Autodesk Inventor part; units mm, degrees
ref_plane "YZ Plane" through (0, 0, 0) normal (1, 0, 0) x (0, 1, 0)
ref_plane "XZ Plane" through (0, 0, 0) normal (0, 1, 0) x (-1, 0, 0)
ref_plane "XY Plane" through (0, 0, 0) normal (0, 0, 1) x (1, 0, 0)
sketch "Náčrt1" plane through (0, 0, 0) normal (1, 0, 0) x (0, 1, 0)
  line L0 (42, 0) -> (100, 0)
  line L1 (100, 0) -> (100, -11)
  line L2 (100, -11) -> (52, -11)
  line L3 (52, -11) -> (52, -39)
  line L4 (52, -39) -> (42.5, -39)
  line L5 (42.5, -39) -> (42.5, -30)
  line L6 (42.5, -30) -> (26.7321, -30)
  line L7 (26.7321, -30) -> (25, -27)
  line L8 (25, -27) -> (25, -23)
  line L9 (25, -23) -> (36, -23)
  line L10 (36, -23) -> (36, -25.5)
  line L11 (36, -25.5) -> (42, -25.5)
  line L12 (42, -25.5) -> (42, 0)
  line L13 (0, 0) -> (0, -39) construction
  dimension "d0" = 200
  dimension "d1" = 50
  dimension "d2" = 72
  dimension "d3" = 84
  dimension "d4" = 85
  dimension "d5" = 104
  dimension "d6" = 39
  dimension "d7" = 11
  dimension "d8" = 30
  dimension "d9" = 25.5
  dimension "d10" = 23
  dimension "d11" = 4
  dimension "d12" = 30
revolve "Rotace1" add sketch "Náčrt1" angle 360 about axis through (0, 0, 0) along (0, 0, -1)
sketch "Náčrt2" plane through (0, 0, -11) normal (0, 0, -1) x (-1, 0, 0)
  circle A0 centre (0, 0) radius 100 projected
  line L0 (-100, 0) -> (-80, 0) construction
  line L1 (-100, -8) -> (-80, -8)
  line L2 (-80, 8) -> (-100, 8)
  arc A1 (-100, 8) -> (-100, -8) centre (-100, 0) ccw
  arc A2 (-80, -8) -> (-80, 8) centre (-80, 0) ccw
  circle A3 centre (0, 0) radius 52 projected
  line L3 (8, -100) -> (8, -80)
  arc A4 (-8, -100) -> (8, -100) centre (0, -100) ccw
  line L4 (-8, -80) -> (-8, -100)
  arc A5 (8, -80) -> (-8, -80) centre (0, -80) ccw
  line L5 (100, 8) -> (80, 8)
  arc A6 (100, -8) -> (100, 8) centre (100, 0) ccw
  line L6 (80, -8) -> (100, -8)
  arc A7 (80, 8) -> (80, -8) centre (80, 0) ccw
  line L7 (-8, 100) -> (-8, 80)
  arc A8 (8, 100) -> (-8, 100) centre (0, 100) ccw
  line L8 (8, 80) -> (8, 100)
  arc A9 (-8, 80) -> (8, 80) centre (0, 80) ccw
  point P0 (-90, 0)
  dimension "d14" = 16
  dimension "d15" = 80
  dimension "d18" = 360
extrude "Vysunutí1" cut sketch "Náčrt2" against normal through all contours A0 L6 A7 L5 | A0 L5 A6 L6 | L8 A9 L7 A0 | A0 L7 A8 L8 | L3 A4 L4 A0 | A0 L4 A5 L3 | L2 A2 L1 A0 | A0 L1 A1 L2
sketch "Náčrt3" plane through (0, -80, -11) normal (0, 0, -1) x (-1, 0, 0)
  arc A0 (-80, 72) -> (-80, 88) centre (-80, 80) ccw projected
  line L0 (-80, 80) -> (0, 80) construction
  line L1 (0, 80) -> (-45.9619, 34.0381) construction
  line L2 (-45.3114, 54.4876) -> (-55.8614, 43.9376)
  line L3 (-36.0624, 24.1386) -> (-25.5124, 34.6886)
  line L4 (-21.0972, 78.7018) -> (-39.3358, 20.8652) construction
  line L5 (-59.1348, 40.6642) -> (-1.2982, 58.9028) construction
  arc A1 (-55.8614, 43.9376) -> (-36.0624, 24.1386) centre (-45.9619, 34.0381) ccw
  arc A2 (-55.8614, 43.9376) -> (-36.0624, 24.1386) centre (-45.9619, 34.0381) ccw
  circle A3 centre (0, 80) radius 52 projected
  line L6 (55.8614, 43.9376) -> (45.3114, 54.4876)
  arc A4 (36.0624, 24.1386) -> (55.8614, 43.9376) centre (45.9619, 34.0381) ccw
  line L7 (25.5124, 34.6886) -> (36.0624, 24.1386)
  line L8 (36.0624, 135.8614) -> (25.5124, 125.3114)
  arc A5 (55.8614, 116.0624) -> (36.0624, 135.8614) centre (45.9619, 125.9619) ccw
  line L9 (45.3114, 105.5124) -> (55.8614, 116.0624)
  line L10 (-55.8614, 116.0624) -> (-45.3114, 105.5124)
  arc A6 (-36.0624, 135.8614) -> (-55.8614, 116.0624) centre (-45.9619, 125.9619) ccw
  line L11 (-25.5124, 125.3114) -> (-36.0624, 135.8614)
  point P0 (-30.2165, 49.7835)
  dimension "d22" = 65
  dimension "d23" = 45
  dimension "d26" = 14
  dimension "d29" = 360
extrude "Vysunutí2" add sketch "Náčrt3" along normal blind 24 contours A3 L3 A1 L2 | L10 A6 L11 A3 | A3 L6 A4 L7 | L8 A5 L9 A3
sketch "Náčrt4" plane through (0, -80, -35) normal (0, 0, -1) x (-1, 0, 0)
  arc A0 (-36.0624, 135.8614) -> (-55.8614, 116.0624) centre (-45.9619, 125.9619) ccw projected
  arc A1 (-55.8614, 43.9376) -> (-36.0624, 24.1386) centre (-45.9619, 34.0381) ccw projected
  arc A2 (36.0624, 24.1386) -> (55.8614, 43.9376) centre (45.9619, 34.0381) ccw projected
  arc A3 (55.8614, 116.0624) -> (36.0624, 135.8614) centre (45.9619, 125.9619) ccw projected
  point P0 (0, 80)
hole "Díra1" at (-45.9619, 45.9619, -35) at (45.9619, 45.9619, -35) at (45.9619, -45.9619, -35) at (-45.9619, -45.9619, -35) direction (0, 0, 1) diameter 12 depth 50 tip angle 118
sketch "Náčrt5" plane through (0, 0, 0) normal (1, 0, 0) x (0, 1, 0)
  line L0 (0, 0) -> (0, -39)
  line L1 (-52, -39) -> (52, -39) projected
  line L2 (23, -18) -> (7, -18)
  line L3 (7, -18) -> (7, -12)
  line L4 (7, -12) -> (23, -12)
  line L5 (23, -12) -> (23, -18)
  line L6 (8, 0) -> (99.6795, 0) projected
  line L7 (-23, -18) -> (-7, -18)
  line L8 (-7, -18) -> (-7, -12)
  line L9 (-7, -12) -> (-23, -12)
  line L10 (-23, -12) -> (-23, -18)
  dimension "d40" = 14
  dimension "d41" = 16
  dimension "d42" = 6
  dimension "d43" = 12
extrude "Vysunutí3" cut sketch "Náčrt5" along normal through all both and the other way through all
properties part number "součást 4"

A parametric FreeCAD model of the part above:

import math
import FreeCAD as App
import Part
import Sketcher
Q = App.Units.Quantity

doc = App.newDocument("Part")
params = doc.addObject("Spreadsheet::Sheet", "Params")
for row, (alias, value) in enumerate([
    ("sketch1_width", "11 mm"),
    ("sketch1_height", "4 mm"),
    ("sketch1_height2", "25.5 mm"),
    ("sketch1_width2", "58 mm"),
    ("sketch1_width3", "6 mm"),
    ("revolution_angle", "360 deg"),
    ("sketch2_radius", "8 mm"),
    ("sketch2_width", "20 mm"),
    ("sketch3_radius", "14 mm"),
    ("sketch3_radius2", "52 mm"),
    ("sketch3_length", "14.92 mm"),
    ("pad1_length", "24 mm"),
    ("sketch4_diameter", "12 mm"),
    ("hole_diameter", "12 mm"),
    ("hole_depth", "50 mm"),
    ("sketch5_width", "16 mm"),
    ("sketch5_height", "6 mm"),
], start=1):
    params.set(f"A{row}", alias)
    params.set(f"B{row}", "=" + value)
    params.setAlias(f"B{row}", alias)

body = doc.addObject("PartDesign::Body", "Body")

# Sketch on YZ plane
sketch1 = doc.addObject("Sketcher::SketchObject", "Sketch")
body.addObject(sketch1)
sketch1.AttachmentSupport = (doc.YZ_Plane, [""])
sketch1.MapMode = "FlatFace"
sketch1.addGeometry(Part.LineSegment(App.Vector(100, 0, 0), App.Vector(42, 0, 0)), False)
sketch1.addGeometry(Part.LineSegment(App.Vector(42, 0, 0), App.Vector(42, -25.5, 0)), False)
sketch1.addGeometry(Part.LineSegment(App.Vector(42, -25.5, 0), App.Vector(36, -25.5, 0)), False)
sketch1.addGeometry(Part.LineSegment(App.Vector(36, -25.5, 0), App.Vector(36, -23, 0)), False)
sketch1.addGeometry(Part.LineSegment(App.Vector(36, -23, 0), App.Vector(25, -23, 0)), False)
sketch1.addGeometry(Part.LineSegment(App.Vector(25, -23, 0), App.Vector(25, -27, 0)), False)
sketch1.addGeometry(Part.LineSegment(App.Vector(25, -27, 0), App.Vector(26.7321, -30, 0)), False)
sketch1.addGeometry(Part.LineSegment(App.Vector(26.7321, -30, 0), App.Vector(42.5, -30, 0)), False)
sketch1.addGeometry(Part.LineSegment(App.Vector(42.5, -30, 0), App.Vector(42.5, -39, 0)), False)
sketch1.addGeometry(Part.LineSegment(App.Vector(42.5, -39, 0), App.Vector(52, -39, 0)), False)
sketch1.addGeometry(Part.LineSegment(App.Vector(52, -39, 0), App.Vector(52, -11, 0)), False)
sketch1.addGeometry(Part.LineSegment(App.Vector(52, -11, 0), App.Vector(100, -11, 0)), False)
sketch1.addGeometry(Part.LineSegment(App.Vector(100, -11, 0), App.Vector(100, 0, 0)), False)
sketch1.addConstraint(Sketcher.Constraint("Coincident", 0, 2, 1, 1))
sketch1.addConstraint(Sketcher.Constraint("Coincident", 1, 2, 2, 1))
sketch1.addConstraint(Sketcher.Constraint("Coincident", 2, 2, 3, 1))
sketch1.addConstraint(Sketcher.Constraint("Coincident", 3, 2, 4, 1))
sketch1.addConstraint(Sketcher.Constraint("Coincident", 4, 2, 5, 1))
sketch1.addConstraint(Sketcher.Constraint("Coincident", 5, 2, 6, 1))
sketch1.addConstraint(Sketcher.Constraint("Coincident", 6, 2, 7, 1))
sketch1.addConstraint(Sketcher.Constraint("Coincident", 7, 2, 8, 1))
sketch1.addConstraint(Sketcher.Constraint("Coincident", 8, 2, 9, 1))
sketch1.addConstraint(Sketcher.Constraint("Coincident", 9, 2, 10, 1))
sketch1.addConstraint(Sketcher.Constraint("Coincident", 10, 2, 11, 1))
sketch1.addConstraint(Sketcher.Constraint("Coincident", 11, 2, 12, 1))
sketch1.addConstraint(Sketcher.Constraint("Coincident", 12, 2, 0, 1))
sketch1.addConstraint(Sketcher.Constraint("Horizontal", 0))
sketch1.addConstraint(Sketcher.Constraint("Vertical", 1))
sketch1.addConstraint(Sketcher.Constraint("Horizontal", 2))
sketch1.addConstraint(Sketcher.Constraint("Vertical", 3))
sketch1.addConstraint(Sketcher.Constraint("Horizontal", 4))
sketch1.addConstraint(Sketcher.Constraint("Vertical", 5))
sketch1.addConstraint(Sketcher.Constraint("Horizontal", 7))
sketch1.addConstraint(Sketcher.Constraint("Vertical", 8))
sketch1.addConstraint(Sketcher.Constraint("Horizontal", 9))
sketch1.addConstraint(Sketcher.Constraint("Vertical", 10))
sketch1.addConstraint(Sketcher.Constraint("Horizontal", 11))
sketch1.addConstraint(Sketcher.Constraint("Vertical", 12))
sketch1.addConstraint(Sketcher.Constraint("PointOnObject", 0, 2, -1))
sketch1.addConstraint(Sketcher.Constraint("Equal", 4, 12))
sketch1.addConstraint(Sketcher.Constraint("DistanceX", 4, 2, 4, 1, Q("11 mm")))
sketch1.addConstraint(Sketcher.Constraint("DistanceY", 5, 2, 5, 1, Q("4 mm")))
sketch1.addConstraint(Sketcher.Constraint("DistanceY", 1, 2, 1, 1, Q("25.5 mm")))
sketch1.addConstraint(Sketcher.Constraint("DistanceY", 3, 2, -1, 1, Q("23 mm")))
sketch1.addConstraint(Sketcher.Constraint("DistanceY", 6, 2, -1, 1, Q("30 mm")))
sketch1.addConstraint(Sketcher.Constraint("DistanceY", 8, 2, -1, 1, Q("39 mm")))
sketch1.addConstraint(Sketcher.Constraint("DistanceX", 0, 2, 0, 1, Q("58 mm")))
sketch1.addConstraint(Sketcher.Constraint("DistanceX", 2, 2, 2, 1, Q("6 mm")))
sketch1.addConstraint(Sketcher.Constraint("DistanceX", 11, 1, 11, 2, Q("48 mm")))
sketch1.addConstraint(Sketcher.Constraint("Angle", 6, Q("-59.9993 deg")))
sketch1.addConstraint(Sketcher.Constraint("DistanceX", 9, 1, 9, 2, Q("9.5 mm")))
sketch1.addConstraint(Sketcher.Constraint("DistanceX", -1, 1, 0, 2, Q("42 mm")))
sketch1.setExpression("Constraints[27]", "Params.sketch1_width")
sketch1.setExpression("Constraints[28]", "Params.sketch1_height")
sketch1.setExpression("Constraints[29]", "Params.sketch1_height2")
sketch1.setExpression("Constraints[33]", "Params.sketch1_width2")
sketch1.setExpression("Constraints[34]", "Params.sketch1_width3")
revolution = doc.addObject("PartDesign::Revolution", "Revolution")
body.addObject(revolution)
revolution.Profile = sketch1
revolution.ReferenceAxis = (sketch1, ["V_Axis"])
revolution.setExpression("Angle", "Params.revolution_angle")

# Sketch on XY plane
sketch2 = doc.addObject("Sketcher::SketchObject", "Sketch001")
body.addObject(sketch2)
sketch2.AttachmentSupport = (doc.XY_Plane, [""])
sketch2.MapMode = "FlatFace"
sketch2.AttachmentOffset = App.Placement(App.Vector(0, 0, -11), App.Rotation())
sketch2.addGeometry(Part.LineSegment(App.Vector(-80, -8, 0), App.Vector(-100, -8, 0)), False)
sketch2.addGeometry(Part.ArcOfCircle(Part.Circle(App.Vector(-100, 0, 0), App.Vector(0, 0, 1), 8), math.radians(90), math.radians(270)), False)
sketch2.addGeometry(Part.LineSegment(App.Vector(-100, 8, 0), App.Vector(-80, 8, 0)), False)
sketch2.addGeometry(Part.ArcOfCircle(Part.Circle(App.Vector(-80, 0, 0), App.Vector(0, 0, 1), 8), math.radians(-90), math.radians(90)), False)
sketch2.addGeometry(Part.LineSegment(App.Vector(-8, 80, 0), App.Vector(-8, 100, 0)), False)
sketch2.addGeometry(Part.ArcOfCircle(Part.Circle(App.Vector(0, 100, 0), App.Vector(0, 0, 1), 8), math.radians(0), math.radians(180)), False)
sketch2.addGeometry(Part.LineSegment(App.Vector(8, 100, 0), App.Vector(8, 80, 0)), False)
sketch2.addGeometry(Part.ArcOfCircle(Part.Circle(App.Vector(0, 80, 0), App.Vector(0, 0, 1), 8), math.radians(180), math.radians(360)), False)
sketch2.addGeometry(Part.LineSegment(App.Vector(-8, -100, 0), App.Vector(-8, -80, 0)), False)
sketch2.addGeometry(Part.ArcOfCircle(Part.Circle(App.Vector(0, -80, 0), App.Vector(0, 0, 1), 8), math.radians(0), math.radians(180)), False)
sketch2.addGeometry(Part.LineSegment(App.Vector(8, -80, 0), App.Vector(8, -100, 0)), False)
sketch2.addGeometry(Part.ArcOfCircle(Part.Circle(App.Vector(0, -100, 0), App.Vector(0, 0, 1), 8), math.radians(180), math.radians(360)), False)
sketch2.addGeometry(Part.LineSegment(App.Vector(80, 8, 0), App.Vector(100, 8, 0)), False)
sketch2.addGeometry(Part.ArcOfCircle(Part.Circle(App.Vector(100, 0, 0), App.Vector(0, 0, 1), 8), math.radians(-90), math.radians(90)), False)
sketch2.addGeometry(Part.LineSegment(App.Vector(100, -8, 0), App.Vector(80, -8, 0)), False)
sketch2.addGeometry(Part.ArcOfCircle(Part.Circle(App.Vector(80, 0, 0), App.Vector(0, 0, 1), 8), math.radians(90), math.radians(270)), False)
sketch2.addConstraint(Sketcher.Constraint("Tangent", 0, 2, 1, 2))
sketch2.addConstraint(Sketcher.Constraint("Tangent", 1, 1, 2, 1))
sketch2.addConstraint(Sketcher.Constraint("Tangent", 2, 2, 3, 2))
sketch2.addConstraint(Sketcher.Constraint("Tangent", 3, 1, 0, 1))
sketch2.addConstraint(Sketcher.Constraint("Tangent", 4, 2, 5, 2))
sketch2.addConstraint(Sketcher.Constraint("Tangent", 5, 1, 6, 1))
sketch2.addConstraint(Sketcher.Constraint("Tangent", 6, 2, 7, 2))
sketch2.addConstraint(Sketcher.Constraint("Tangent", 7, 1, 4, 1))
sketch2.addConstraint(Sketcher.Constraint("Tangent", 8, 2, 9, 2))
sketch2.addConstraint(Sketcher.Constraint("Tangent", 9, 1, 10, 1))
sketch2.addConstraint(Sketcher.Constraint("Tangent", 10, 2, 11, 2))
sketch2.addConstraint(Sketcher.Constraint("Tangent", 11, 1, 8, 1))
sketch2.addConstraint(Sketcher.Constraint("Tangent", 12, 2, 13, 2))
sketch2.addConstraint(Sketcher.Constraint("Tangent", 13, 1, 14, 1))
sketch2.addConstraint(Sketcher.Constraint("Tangent", 14, 2, 15, 2))
sketch2.addConstraint(Sketcher.Constraint("Tangent", 15, 1, 12, 1))
sketch2.addConstraint(Sketcher.Constraint("Horizontal", 0))
sketch2.addConstraint(Sketcher.Constraint("Horizontal", 2))
sketch2.addConstraint(Sketcher.Constraint("Vertical", 4))
sketch2.addConstraint(Sketcher.Constraint("Vertical", 6))
sketch2.addConstraint(Sketcher.Constraint("Vertical", 8))
sketch2.addConstraint(Sketcher.Constraint("Vertical", 10))
sketch2.addConstraint(Sketcher.Constraint("Horizontal", 12))
sketch2.addConstraint(Sketcher.Constraint("Horizontal", 14))
sketch2.addConstraint(Sketcher.Constraint("Equal", 3, 5))
sketch2.addConstraint(Sketcher.Constraint("Equal", 7, 9))
sketch2.addConstraint(Sketcher.Constraint("Equal", 11, 13))
sketch2.addConstraint(Sketcher.Constraint("Symmetric", 7, 3, 9, 3, -1, 1))
sketch2.addConstraint(Sketcher.Constraint("Symmetric", 1, 3, 13, 3, -1, 1))
sketch2.addConstraint(Sketcher.Constraint("Symmetric", 3, 3, 15, 3, -2))
sketch2.addConstraint(Sketcher.Constraint("Symmetric", 5, 3, 11, 3, -1))
sketch2.addConstraint(Sketcher.Constraint("Equal", 14, 4))
sketch2.addConstraint(Sketcher.Constraint("Radius", 1, Q("8 mm")))
sketch2.addConstraint(Sketcher.Constraint("DistanceX", 3, 3, -1, 1, Q("80 mm")))
sketch2.addConstraint(Sketcher.Constraint("DistanceY", -1, 1, 7, 3, Q("80 mm")))
sketch2.addConstraint(Sketcher.Constraint("DistanceX", 0, 2, 0, 1, Q("20 mm")))
sketch2.setExpression("Constraints[32]", "Params.sketch2_radius")
sketch2.setExpression("Constraints[35]", "Params.sketch2_width")
pocket1 = doc.addObject("PartDesign::Pocket", "Pocket")
body.addObject(pocket1)
pocket1.Profile = sketch2
pocket1.Type = "ThroughAll"
pocket1.Reversed = True

# Sketch on XY plane
sketch3 = doc.addObject("Sketcher::SketchObject", "Sketch002")
body.addObject(sketch3)
sketch3.AttachmentSupport = (doc.XY_Plane, [""])
sketch3.MapMode = "FlatFace"
sketch3.AttachmentOffset = App.Placement(App.Vector(0, 0, -11), App.Rotation())
sketch3.addGeometry(Part.ArcOfCircle(Part.Circle(App.Vector(0, 0, 0), App.Vector(0, 0, 1), 52), math.radians(-60.61849), math.radians(-29.38151)), False)
sketch3.addGeometry(Part.LineSegment(App.Vector(45.3114, -25.5124, 0), App.Vector(55.8614, -36.0624, 0)), False)
sketch3.addGeometry(Part.ArcOfCircle(Part.Circle(App.Vector(45.9619, -45.9619, 0), App.Vector(0, 0, 1), 14.000007), math.radians(-135), math.radians(45)), False)
sketch3.addGeometry(Part.LineSegment(App.Vector(36.0624, -55.8614, 0), App.Vector(25.5124, -45.3114, 0)), False)
sketch3.addGeometry(Part.LineSegment(App.Vector(55.8614, 36.0624, 0), App.Vector(45.3114, 25.5124, 0)), False)
sketch3.addGeometry(Part.ArcOfCircle(Part.Circle(App.Vector(0, 0, 0), App.Vector(0, 0, 1), 52), math.radians(29.38151), math.radians(60.61849)), False)
sketch3.addGeometry(Part.LineSegment(App.Vector(25.5124, 45.3114, 0), App.Vector(36.0624, 55.8614, 0)), False)
sketch3.addGeometry(Part.ArcOfCircle(Part.Circle(App.Vector(45.9619, 45.9619, 0), App.Vector(0, 0, 1), 14.000007), math.radians(-45), math.radians(135)), False)
sketch3.addGeometry(Part.ArcOfCircle(Part.Circle(App.Vector(0, 0, 0), App.Vector(0, 0, 1), 52), math.radians(-150.61849), math.radians(-119.38151)), False)
sketch3.addGeometry(Part.LineSegment(App.Vector(-25.5124, -45.3114, 0), App.Vector(-36.0624, -55.8614, 0)), False)
sketch3.addGeometry(Part.ArcOfCircle(Part.Circle(App.Vector(-45.9619, -45.9619, 0), App.Vector(0, 0, 1), 14.000007), math.radians(135), math.radians(315)), False)
sketch3.addGeometry(Part.LineSegment(App.Vector(-55.8614, -36.0624, 0), App.Vector(-45.3114, -25.5124, 0)), False)
sketch3.addGeometry(Part.LineSegment(App.Vector(-36.0624, 55.8614, 0), App.Vector(-25.5124, 45.3114, 0)), False)
sketch3.addGeometry(Part.ArcOfCircle(Part.Circle(App.Vector(0, 0, 0), App.Vector(0, 0, 1), 52), math.radians(119.38151), math.radians(150.61849)), False)
sketch3.addGeometry(Part.LineSegment(App.Vector(-45.3114, 25.5124, 0), App.Vector(-55.8614, 36.0624, 0)), False)
sketch3.addGeometry(Part.ArcOfCircle(Part.Circle(App.Vector(-45.9619, 45.9619, 0), App.Vector(0, 0, 1), 14.000007), math.radians(45), math.radians(225)), False)
sketch3.addConstraint(Sketcher.Constraint("Coincident", 0, 2, 1, 1))
sketch3.addConstraint(Sketcher.Constraint("Tangent", 1, 2, 2, 2))
sketch3.addConstraint(Sketcher.Constraint("Tangent", 2, 1, 3, 1))
sketch3.addConstraint(Sketcher.Constraint("Coincident", 3, 2, 0, 1))
sketch3.addConstraint(Sketcher.Constraint("Coincident", 4, 2, 5, 1))
sketch3.addConstraint(Sketcher.Constraint("Coincident", 5, 2, 6, 1))
sketch3.addConstraint(Sketcher.Constraint("Tangent", 6, 2, 7, 2))
sketch3.addConstraint(Sketcher.Constraint("Tangent", 7, 1, 4, 1))
sketch3.addConstraint(Sketcher.Constraint("Coincident", 8, 2, 9, 1))
sketch3.addConstraint(Sketcher.Constraint("Tangent", 9, 2, 10, 2))
sketch3.addConstraint(Sketcher.Constraint("Tangent", 10, 1, 11, 1))
sketch3.addConstraint(Sketcher.Constraint("Coincident", 11, 2, 8, 1))
sketch3.addConstraint(Sketcher.Constraint("Coincident", 12, 2, 13, 1))
sketch3.addConstraint(Sketcher.Constraint("Coincident", 13, 2, 14, 1))
sketch3.addConstraint(Sketcher.Constraint("Tangent", 14, 2, 15, 2))
sketch3.addConstraint(Sketcher.Constraint("Tangent", 15, 1, 12, 1))
sketch3.addConstraint(Sketcher.Constraint("Coincident", 0, 3, -1, 1))
sketch3.addConstraint(Sketcher.Constraint("Coincident", 5, 3, -1, 1))
sketch3.addConstraint(Sketcher.Constraint("Coincident", 8, 3, -1, 1))
sketch3.addConstraint(Sketcher.Constraint("Coincident", 13, 3, -1, 1))
sketch3.addConstraint(Sketcher.Constraint("Equal", 0, 5))
sketch3.addConstraint(Sketcher.Constraint("Equal", 2, 7))
sketch3.addConstraint(Sketcher.Constraint("Equal", 5, 8))
sketch3.addConstraint(Sketcher.Constraint("Equal", 7, 10))
sketch3.addConstraint(Sketcher.Constraint("Equal", 8, 13))
sketch3.addConstraint(Sketcher.Constraint("Equal", 10, 15))
sketch3.addConstraint(Sketcher.Constraint("Symmetric", 7, 3, 10, 3, -1, 1))
sketch3.addConstraint(Sketcher.Constraint("Symmetric", 2, 3, 15, 3, -1, 1))
sketch3.addConstraint(Sketcher.Constraint("Symmetric", 2, 3, 10, 3, -2))
sketch3.addConstraint(Sketcher.Constraint("Parallel", 1, 3))
sketch3.addConstraint(Sketcher.Constraint("Perpendicular", 3, 4))
sketch3.addConstraint(Sketcher.Constraint("Parallel", 4, 6))
sketch3.addConstraint(Sketcher.Constraint("Parallel", 6, 9))
sketch3.addConstraint(Sketcher.Constraint("Parallel", 9, 11))
sketch3.addConstraint(Sketcher.Constraint("Perpendicular", 11, 12))
sketch3.addConstraint(Sketcher.Constraint("Parallel", 12, 14))
sketch3.addConstraint(Sketcher.Constraint("Horizontal", 3, 2, 8, 2))
sketch3.addConstraint(Sketcher.Constraint("Equal", 1, 3))
sketch3.addConstraint(Sketcher.Constraint("Radius", 2, Q("14 mm")))
sketch3.addConstraint(Sketcher.Constraint("Radius", 0, Q("52 mm")))
sketch3.addConstraint(Sketcher.Constraint("Distance", 1, Q("14.92 mm")))
sketch3.setExpression("Constraints[38]", "Params.sketch3_radius")
sketch3.setExpression("Constraints[39]", "Params.sketch3_radius2")
sketch3.setExpression("Constraints[40]", "Params.sketch3_length")
pad1 = doc.addObject("PartDesign::Pad", "Pad")
body.addObject(pad1)
pad1.Profile = sketch3
pad1.setExpression("Length", "Params.pad1_length")
pad1.Reversed = True

# Sketch on XY plane
sketch4 = doc.addObject("Sketcher::SketchObject", "Sketch003")
body.addObject(sketch4)
sketch4.AttachmentSupport = (doc.XY_Plane, [""])
sketch4.MapMode = "FlatFace"
sketch4.AttachmentOffset = App.Placement(App.Vector(0, 0, -35), App.Rotation())
sketch4.addGeometry(Part.Circle(App.Vector(-45.9619, 45.9619, 0), App.Vector(0, 0, 1), 6), False)
sketch4.addGeometry(Part.Circle(App.Vector(45.9619, 45.9619, 0), App.Vector(0, 0, 1), 6), False)
sketch4.addGeometry(Part.Circle(App.Vector(45.9619, -45.9619, 0), App.Vector(0, 0, 1), 6), False)
sketch4.addGeometry(Part.Circle(App.Vector(-45.9619, -45.9619, 0), App.Vector(0, 0, 1), 6), False)
sketch4.addConstraint(Sketcher.Constraint("Equal", 0, 1))
sketch4.addConstraint(Sketcher.Constraint("Equal", 1, 2))
sketch4.addConstraint(Sketcher.Constraint("Equal", 2, 3))
sketch4.addConstraint(Sketcher.Constraint("Symmetric", 0, 3, 2, 3, -1, 1))
sketch4.addConstraint(Sketcher.Constraint("Symmetric", 1, 3, 3, 3, -1, 1))
sketch4.addConstraint(Sketcher.Constraint("Symmetric", 0, 3, 1, 3, -2))
sketch4.addConstraint(Sketcher.Constraint("Diameter", 0, Q("12 mm")))
sketch4.addConstraint(Sketcher.Constraint("DistanceX", 0, 3, -1, 1, Q("45.962 mm")))
sketch4.addConstraint(Sketcher.Constraint("DistanceY", -1, 1, 0, 3, Q("45.962 mm")))
sketch4.setExpression("Constraints[6]", "Params.sketch4_diameter")
doc.recompute()
hole = doc.addObject("PartDesign::Hole", "Hole")
body.addObject(hole)
hole.Profile = sketch4
hole.ThreadType = "None"
hole.setExpression("Diameter", "Params.hole_diameter")
hole.DepthType = "Dimension"
hole.setExpression("Depth", "Params.hole_depth")
hole.DrillPoint = "Angled"
hole.DrillPointAngle = 118
hole.Reversed = True

# Sketch on YZ plane
sketch5 = doc.addObject("Sketcher::SketchObject", "Sketch004")
body.addObject(sketch5)
sketch5.AttachmentSupport = (doc.YZ_Plane, [""])
sketch5.MapMode = "FlatFace"
sketch5.addGeometry(Part.LineSegment(App.Vector(7, -18, 0), App.Vector(23, -18, 0)), False)
sketch5.addGeometry(Part.LineSegment(App.Vector(23, -18, 0), App.Vector(23, -12, 0)), False)
sketch5.addGeometry(Part.LineSegment(App.Vector(23, -12, 0), App.Vector(7, -12, 0)), False)
sketch5.addGeometry(Part.LineSegment(App.Vector(7, -12, 0), App.Vector(7, -18, 0)), False)
sketch5.addGeometry(Part.LineSegment(App.Vector(-23, -12, 0), App.Vector(-23, -18, 0)), False)
sketch5.addGeometry(Part.LineSegment(App.Vector(-23, -18, 0), App.Vector(-7, -18, 0)), False)
sketch5.addGeometry(Part.LineSegment(App.Vector(-7, -18, 0), App.Vector(-7, -12, 0)), False)
sketch5.addGeometry(Part.LineSegment(App.Vector(-7, -12, 0), App.Vector(-23, -12, 0)), False)
sketch5.addConstraint(Sketcher.Constraint("Coincident", 0, 2, 1, 1))
sketch5.addConstraint(Sketcher.Constraint("Coincident", 1, 2, 2, 1))
sketch5.addConstraint(Sketcher.Constraint("Coincident", 2, 2, 3, 1))
sketch5.addConstraint(Sketcher.Constraint("Coincident", 3, 2, 0, 1))
sketch5.addConstraint(Sketcher.Constraint("Coincident", 4, 2, 5, 1))
sketch5.addConstraint(Sketcher.Constraint("Coincident", 5, 2, 6, 1))
sketch5.addConstraint(Sketcher.Constraint("Coincident", 6, 2, 7, 1))
sketch5.addConstraint(Sketcher.Constraint("Coincident", 7, 2, 4, 1))
sketch5.addConstraint(Sketcher.Constraint("Horizontal", 0))
sketch5.addConstraint(Sketcher.Constraint("Vertical", 1))
sketch5.addConstraint(Sketcher.Constraint("Horizontal", 2))
sketch5.addConstraint(Sketcher.Constraint("Vertical", 3))
sketch5.addConstraint(Sketcher.Constraint("Vertical", 4))
sketch5.addConstraint(Sketcher.Constraint("Horizontal", 5))
sketch5.addConstraint(Sketcher.Constraint("Vertical", 6))
sketch5.addConstraint(Sketcher.Constraint("Horizontal", 7))
sketch5.addConstraint(Sketcher.Constraint("Symmetric", 0, 2, 4, 2, -2))
sketch5.addConstraint(Sketcher.Constraint("Symmetric", 2, 2, 6, 2, -2))
sketch5.addConstraint(Sketcher.Constraint("DistanceX", 0, 1, 0, 2, Q("16 mm")))
sketch5.addConstraint(Sketcher.Constraint("DistanceY", 1, 1, 1, 2, Q("6 mm")))
sketch5.addConstraint(Sketcher.Constraint("DistanceY", 1, 2, -1, 1, Q("12 mm")))
sketch5.addConstraint(Sketcher.Constraint("DistanceX", 5, 2, 3, 2, Q("14 mm")))
sketch5.setExpression("Constraints[18]", "Params.sketch5_width")
sketch5.setExpression("Constraints[19]", "Params.sketch5_height")
pocket2 = doc.addObject("PartDesign::Pocket", "Pocket001")
body.addObject(pocket2)
pocket2.Profile = sketch5
pocket2.Type = "ThroughAll"
pocket2.Midplane = True

doc.recompute()
